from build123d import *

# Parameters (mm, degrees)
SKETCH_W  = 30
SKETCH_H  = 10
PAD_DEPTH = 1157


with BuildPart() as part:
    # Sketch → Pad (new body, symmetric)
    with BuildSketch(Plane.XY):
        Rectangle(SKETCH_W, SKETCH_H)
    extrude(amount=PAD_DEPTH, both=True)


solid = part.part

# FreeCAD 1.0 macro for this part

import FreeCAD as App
import Part
import Sketcher

V = App.Vector
Q = App.Units.Quantity


def add_polygon(sketch, points):
    """Adds a closed chain of lines whose ends are joined by coincident constraints."""
    first, n = sketch.GeometryCount, len(points)
    for a, b in zip(points, points[1:] + points[:1]):
        sketch.addGeometry(Part.LineSegment(App.Vector(*a, 0), App.Vector(*b, 0)), False)
    for i in range(n):
        sketch.addConstraint(Sketcher.Constraint("Coincident", first + i, 2, first + (i + 1) % n, 1))

doc = App.newDocument("Part")
body = doc.addObject("PartDesign::Body", "Body")

sketch1 = body.newObject("Sketcher::SketchObject", "Sketch")
sketch1.AttachmentSupport = (doc.getObject("XY_Plane"), [""])
sketch1.MapMode = "FlatFace"
add_polygon(sketch1, [(-15, 5), (-15, -5), (15, -5), (15, 5)])
sketch1.addConstraint([
    Sketcher.Constraint("Vertical", 0),
    Sketcher.Constraint("Horizontal", 1),
    Sketcher.Constraint("Vertical", 2),
    Sketcher.Constraint("Horizontal", 3),
    Sketcher.Constraint("Symmetric", 0, 2, 2, 2, -1, 1),
    Sketcher.Constraint("DistanceX", 1, 1, 1, 2, Q("30 mm")),
    Sketcher.Constraint("DistanceY", 0, 2, 0, 1, Q("10 mm")),
])
pad1 = body.newObject("PartDesign::Pad", "Pad")
pad1.Profile = sketch1
pad1.Length = 2314
pad1.Midplane = True

doc.recompute()
